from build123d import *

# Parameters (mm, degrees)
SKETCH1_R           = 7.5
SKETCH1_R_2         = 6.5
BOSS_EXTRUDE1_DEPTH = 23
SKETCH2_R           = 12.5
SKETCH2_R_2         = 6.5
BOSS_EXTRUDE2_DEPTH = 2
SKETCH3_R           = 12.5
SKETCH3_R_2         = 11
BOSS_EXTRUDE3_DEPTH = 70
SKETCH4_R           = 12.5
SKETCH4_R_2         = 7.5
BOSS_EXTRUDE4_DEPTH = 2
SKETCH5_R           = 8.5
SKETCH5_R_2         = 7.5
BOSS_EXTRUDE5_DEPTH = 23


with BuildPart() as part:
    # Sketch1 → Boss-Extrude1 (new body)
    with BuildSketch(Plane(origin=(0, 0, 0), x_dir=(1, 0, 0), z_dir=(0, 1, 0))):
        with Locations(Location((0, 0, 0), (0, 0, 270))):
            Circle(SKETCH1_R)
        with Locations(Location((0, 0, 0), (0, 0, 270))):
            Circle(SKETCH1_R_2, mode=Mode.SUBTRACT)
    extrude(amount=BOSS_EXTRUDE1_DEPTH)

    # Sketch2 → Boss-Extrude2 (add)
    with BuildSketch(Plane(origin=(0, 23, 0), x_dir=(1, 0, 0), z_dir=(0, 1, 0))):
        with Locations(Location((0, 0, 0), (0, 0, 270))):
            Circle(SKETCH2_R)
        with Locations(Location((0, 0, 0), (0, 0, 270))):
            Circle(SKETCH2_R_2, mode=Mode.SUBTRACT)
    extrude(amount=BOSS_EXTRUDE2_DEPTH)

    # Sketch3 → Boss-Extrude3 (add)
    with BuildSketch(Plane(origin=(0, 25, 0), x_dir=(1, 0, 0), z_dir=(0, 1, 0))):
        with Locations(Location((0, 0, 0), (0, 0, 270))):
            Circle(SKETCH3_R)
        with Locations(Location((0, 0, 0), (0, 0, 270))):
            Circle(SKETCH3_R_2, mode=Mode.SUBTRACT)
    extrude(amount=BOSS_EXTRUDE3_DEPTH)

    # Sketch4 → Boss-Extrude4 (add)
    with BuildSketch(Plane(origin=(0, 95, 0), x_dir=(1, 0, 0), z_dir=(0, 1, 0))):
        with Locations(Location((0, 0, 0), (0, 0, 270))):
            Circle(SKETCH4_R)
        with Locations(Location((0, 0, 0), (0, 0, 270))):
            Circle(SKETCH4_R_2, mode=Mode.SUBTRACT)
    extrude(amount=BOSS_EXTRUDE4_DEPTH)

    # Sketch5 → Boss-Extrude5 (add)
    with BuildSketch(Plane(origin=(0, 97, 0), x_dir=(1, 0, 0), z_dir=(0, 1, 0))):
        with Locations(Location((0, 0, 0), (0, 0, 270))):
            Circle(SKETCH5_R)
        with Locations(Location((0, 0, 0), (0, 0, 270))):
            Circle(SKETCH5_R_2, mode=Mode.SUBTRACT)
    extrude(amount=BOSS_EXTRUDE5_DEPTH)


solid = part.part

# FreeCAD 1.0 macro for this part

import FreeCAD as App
import Part
import Sketcher

V = App.Vector
Q = App.Units.Quantity

doc = App.newDocument("Part")
body = doc.addObject("PartDesign::Body", "Body")

sketch1 = body.newObject("Sketcher::SketchObject", "Sketch")
sketch1.AttachmentSupport = (doc.getObject("XZ_Plane"), [""])
sketch1.MapMode = "FlatFace"
sketch1.addGeometry([
    Part.Circle(V(0, 0, 0), V(0, 0, 1), 8),
    Part.Circle(V(0, 0, 0), V(0, 0, 1), 6),
], False)
sketch1.addConstraint([
    Sketcher.Constraint("Coincident", 0, 3, -1, 1),
    Sketcher.Constraint("Coincident", 1, 3, -1, 1),
    Sketcher.Constraint("Diameter", 0, Q("15 mm")),
    Sketcher.Constraint("Diameter", 1, Q("13 mm")),
])
pad1 = body.newObject("PartDesign::Pad", "Pad")
pad1.Profile = sketch1
pad1.Length = 23
pad1.Reversed = True

sketch2 = body.newObject("Sketcher::SketchObject", "Sketch001")
sketch2.AttachmentSupport = (doc.getObject("XZ_Plane"), [""])
sketch2.MapMode = "FlatFace"
sketch2.AttachmentOffset = App.Placement(V(0, 0, -23), App.Rotation())
sketch2.addGeometry([
    Part.Circle(V(0, 0, 0), V(0, 0, 1), 12),
    Part.Circle(V(0, 0, 0), V(0, 0, 1), 6),
], False)
sketch2.addConstraint([
    Sketcher.Constraint("Coincident", 0, 3, -1, 1),
    Sketcher.Constraint("Coincident", 1, 3, -1, 1),
    Sketcher.Constraint("Diameter", 0, Q("25 mm")),
    Sketcher.Constraint("Diameter", 1, Q("13 mm")),
])
pad2 = body.newObject("PartDesign::Pad", "Pad001")
pad2.Profile = sketch2
pad2.Length = 2
pad2.Reversed = True

sketch3 = body.newObject("Sketcher::SketchObject", "Sketch002")
sketch3.AttachmentSupport = (doc.getObject("XZ_Plane"), [""])
sketch3.MapMode = "FlatFace"
sketch3.AttachmentOffset = App.Placement(V(0, 0, -25), App.Rotation())
sketch3.addGeometry([
    Part.Circle(V(0, 0, 0), V(0, 0, 1), 12),
    Part.Circle(V(0, 0, 0), V(0, 0, 1), 11),
], False)
sketch3.addConstraint([
    Sketcher.Constraint("Coincident", 0, 3, -1, 1),
    Sketcher.Constraint("Coincident", 1, 3, -1, 1),
    Sketcher.Constraint("Diameter", 0, Q("25 mm")),
    Sketcher.Constraint("Diameter", 1, Q("22 mm")),
])
pad3 = body.newObject("PartDesign::Pad", "Pad002")
pad3.Profile = sketch3
pad3.Length = 70
pad3.Reversed = True

sketch4 = body.newObject("Sketcher::SketchObject", "Sketch003")
sketch4.AttachmentSupport = (doc.getObject("XZ_Plane"), [""])
sketch4.MapMode = "FlatFace"
sketch4.AttachmentOffset = App.Placement(V(0, 0, -95), App.Rotation())
sketch4.addGeometry([
    Part.Circle(V(0, 0, 0), V(0, 0, 1), 12),
    Part.Circle(V(0, 0, 0), V(0, 0, 1), 8),
], False)
sketch4.addConstraint([
    Sketcher.Constraint("Coincident", 0, 3, -1, 1),
    Sketcher.Constraint("Coincident", 1, 3, -1, 1),
    Sketcher.Constraint("Diameter", 0, Q("25 mm")),
    Sketcher.Constraint("Diameter", 1, Q("15 mm")),
])
pad4 = body.newObject("PartDesign::Pad", "Pad003")
pad4.Profile = sketch4
pad4.Length = 2
pad4.Reversed = True

sketch5 = body.newObject("Sketcher::SketchObject", "Sketch004")
sketch5.AttachmentSupport = (doc.getObject("XZ_Plane"), [""])
sketch5.MapMode = "FlatFace"
sketch5.AttachmentOffset = App.Placement(V(0, 0, -97), App.Rotation())
sketch5.addGeometry([
    Part.Circle(V(0, 0, 0), V(0, 0, 1), 8),
    Part.Circle(V(0, 0, 0), V(0, 0, 1), 8),
], False)
sketch5.addConstraint([
    Sketcher.Constraint("Coincident", 0, 3, -1, 1),
    Sketcher.Constraint("Coincident", 1, 3, -1, 1),
    Sketcher.Constraint("Diameter", 0, Q("17 mm")),
    Sketcher.Constraint("Diameter", 1, Q("15 mm")),
])
pad5 = body.newObject("PartDesign::Pad", "Pad004")
pad5.Profile = sketch5
pad5.Length = 23
pad5.Reversed = True

doc.recompute()
